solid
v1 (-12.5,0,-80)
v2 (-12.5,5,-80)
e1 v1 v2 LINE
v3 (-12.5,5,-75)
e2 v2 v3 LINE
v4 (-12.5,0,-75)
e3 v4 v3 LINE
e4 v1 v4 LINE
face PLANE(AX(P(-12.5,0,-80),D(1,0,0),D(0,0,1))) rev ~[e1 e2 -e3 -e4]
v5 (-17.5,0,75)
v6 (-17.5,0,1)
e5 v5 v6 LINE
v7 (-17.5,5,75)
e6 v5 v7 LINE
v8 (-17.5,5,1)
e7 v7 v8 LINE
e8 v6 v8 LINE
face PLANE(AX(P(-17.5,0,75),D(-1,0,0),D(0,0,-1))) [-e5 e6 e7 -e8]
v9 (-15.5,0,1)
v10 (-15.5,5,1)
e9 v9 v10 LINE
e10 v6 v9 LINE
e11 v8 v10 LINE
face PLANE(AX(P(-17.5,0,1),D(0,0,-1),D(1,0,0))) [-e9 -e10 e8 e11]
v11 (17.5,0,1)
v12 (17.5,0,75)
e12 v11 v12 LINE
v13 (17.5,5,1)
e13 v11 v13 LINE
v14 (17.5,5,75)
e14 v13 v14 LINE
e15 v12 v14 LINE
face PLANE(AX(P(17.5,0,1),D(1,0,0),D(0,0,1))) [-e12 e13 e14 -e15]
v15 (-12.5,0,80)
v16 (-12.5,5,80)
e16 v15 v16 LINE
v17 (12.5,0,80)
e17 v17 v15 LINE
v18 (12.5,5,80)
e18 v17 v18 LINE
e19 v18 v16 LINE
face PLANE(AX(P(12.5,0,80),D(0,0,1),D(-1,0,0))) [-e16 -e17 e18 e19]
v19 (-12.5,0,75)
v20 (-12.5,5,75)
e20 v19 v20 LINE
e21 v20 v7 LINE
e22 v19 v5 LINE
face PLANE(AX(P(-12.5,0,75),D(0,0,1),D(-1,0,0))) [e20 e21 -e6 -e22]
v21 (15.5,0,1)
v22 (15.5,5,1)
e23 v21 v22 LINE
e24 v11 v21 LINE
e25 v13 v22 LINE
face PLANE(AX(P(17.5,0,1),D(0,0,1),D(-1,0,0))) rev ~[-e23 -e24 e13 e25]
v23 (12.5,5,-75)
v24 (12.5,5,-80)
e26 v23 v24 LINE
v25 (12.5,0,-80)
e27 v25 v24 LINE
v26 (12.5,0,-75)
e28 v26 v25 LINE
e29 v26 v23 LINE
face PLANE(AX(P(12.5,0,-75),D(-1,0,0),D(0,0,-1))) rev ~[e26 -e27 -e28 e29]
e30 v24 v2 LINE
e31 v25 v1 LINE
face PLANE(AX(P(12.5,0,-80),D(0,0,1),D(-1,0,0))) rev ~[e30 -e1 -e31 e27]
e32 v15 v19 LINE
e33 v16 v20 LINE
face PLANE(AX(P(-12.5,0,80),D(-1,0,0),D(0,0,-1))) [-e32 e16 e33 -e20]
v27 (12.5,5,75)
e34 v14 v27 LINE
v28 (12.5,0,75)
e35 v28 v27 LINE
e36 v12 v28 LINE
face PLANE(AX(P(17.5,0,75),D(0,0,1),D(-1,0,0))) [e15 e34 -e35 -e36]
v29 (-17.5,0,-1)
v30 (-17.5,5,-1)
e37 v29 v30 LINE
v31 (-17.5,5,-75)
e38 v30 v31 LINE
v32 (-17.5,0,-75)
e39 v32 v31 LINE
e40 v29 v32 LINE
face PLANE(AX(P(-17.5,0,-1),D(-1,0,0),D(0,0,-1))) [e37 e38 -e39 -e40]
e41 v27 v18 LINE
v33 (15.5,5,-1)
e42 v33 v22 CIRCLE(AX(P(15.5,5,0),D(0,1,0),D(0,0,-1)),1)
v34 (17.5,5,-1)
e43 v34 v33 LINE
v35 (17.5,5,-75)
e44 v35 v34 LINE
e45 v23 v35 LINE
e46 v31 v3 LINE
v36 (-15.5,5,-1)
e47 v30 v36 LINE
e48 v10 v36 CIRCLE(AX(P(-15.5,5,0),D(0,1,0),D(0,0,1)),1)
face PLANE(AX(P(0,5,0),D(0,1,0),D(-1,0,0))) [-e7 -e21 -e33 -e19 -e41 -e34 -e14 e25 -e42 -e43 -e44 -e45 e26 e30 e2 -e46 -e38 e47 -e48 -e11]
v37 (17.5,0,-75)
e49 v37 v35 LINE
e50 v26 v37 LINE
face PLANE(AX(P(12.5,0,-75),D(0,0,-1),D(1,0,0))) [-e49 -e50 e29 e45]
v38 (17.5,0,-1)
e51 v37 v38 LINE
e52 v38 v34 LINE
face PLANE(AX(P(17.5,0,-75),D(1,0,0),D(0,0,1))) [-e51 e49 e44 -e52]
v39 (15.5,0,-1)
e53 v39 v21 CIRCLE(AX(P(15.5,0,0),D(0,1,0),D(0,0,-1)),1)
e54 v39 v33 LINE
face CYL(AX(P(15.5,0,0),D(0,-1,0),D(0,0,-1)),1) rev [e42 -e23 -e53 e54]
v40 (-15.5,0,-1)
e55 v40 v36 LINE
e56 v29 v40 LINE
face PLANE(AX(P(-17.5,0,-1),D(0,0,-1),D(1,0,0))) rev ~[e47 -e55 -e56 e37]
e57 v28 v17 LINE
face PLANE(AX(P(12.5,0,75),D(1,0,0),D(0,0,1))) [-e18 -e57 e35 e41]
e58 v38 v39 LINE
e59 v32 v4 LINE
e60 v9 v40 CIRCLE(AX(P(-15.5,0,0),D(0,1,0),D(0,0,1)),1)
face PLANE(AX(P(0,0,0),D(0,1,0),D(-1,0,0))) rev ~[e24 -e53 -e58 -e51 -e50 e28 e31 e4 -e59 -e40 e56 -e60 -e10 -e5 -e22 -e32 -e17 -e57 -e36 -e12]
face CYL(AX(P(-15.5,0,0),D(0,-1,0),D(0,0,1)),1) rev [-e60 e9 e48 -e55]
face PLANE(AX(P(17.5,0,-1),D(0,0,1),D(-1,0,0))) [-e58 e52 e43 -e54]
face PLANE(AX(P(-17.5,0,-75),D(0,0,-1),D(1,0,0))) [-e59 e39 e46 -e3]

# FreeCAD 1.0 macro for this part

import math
import FreeCAD as App
import Part
import Sketcher
from FreeCAD import Vector

doc = App.newDocument("Part")
body = doc.addObject("PartDesign::Body", "Body")

sketch1 = body.newObject("Sketcher::SketchObject", "Sketch")
sketch1.AttachmentSupport = (doc.getObject("XZ_Plane"), [""])
sketch1.MapMode = "FlatFace"
sketch1.addGeometry(Part.LineSegment(Vector(-12.5, -75, 0), Vector(-17.5, -75, 0)), False)
sketch1.addGeometry(Part.LineSegment(Vector(-17.5, -75, 0), Vector(-17.5, -1, 0)), False)
sketch1.addGeometry(Part.LineSegment(Vector(-17.5, -1, 0), Vector(-15.5, -1, 0)), False)
sketch1.addGeometry(Part.ArcOfCircle(Part.Circle(Vector(-15.5, 0, 0), Vector(0, 0, 1), 1), math.radians(-90), math.radians(90)), False)
sketch1.addGeometry(Part.LineSegment(Vector(-15.5, 1, 0), Vector(-17.5, 1, 0)), False)
sketch1.addGeometry(Part.LineSegment(Vector(-17.5, 1, 0), Vector(-17.5, 75, 0)), False)
sketch1.addGeometry(Part.LineSegment(Vector(-17.5, 75, 0), Vector(-12.5, 75, 0)), False)
sketch1.addGeometry(Part.LineSegment(Vector(-12.5, 75, 0), Vector(-12.5, 80, 0)), False)
sketch1.addGeometry(Part.LineSegment(Vector(-12.5, 80, 0), Vector(12.5, 80, 0)), False)
sketch1.addGeometry(Part.LineSegment(Vector(12.5, 80, 0), Vector(12.5, 75, 0)), False)
sketch1.addGeometry(Part.LineSegment(Vector(12.5, 75, 0), Vector(17.5, 75, 0)), False)
sketch1.addGeometry(Part.LineSegment(Vector(17.5, 75, 0), Vector(17.5, 1, 0)), False)
sketch1.addGeometry(Part.LineSegment(Vector(17.5, 1, 0), Vector(15.5, 1, 0)), False)
sketch1.addGeometry(Part.ArcOfCircle(Part.Circle(Vector(15.5, 0, 0), Vector(0, 0, 1), 1), math.radians(90), math.radians(270)), False)
sketch1.addGeometry(Part.LineSegment(Vector(15.5, -1, 0), Vector(17.5, -1, 0)), False)
sketch1.addGeometry(Part.LineSegment(Vector(17.5, -1, 0), Vector(17.5, -75, 0)), False)
sketch1.addGeometry(Part.LineSegment(Vector(17.5, -75, 0), Vector(12.5, -75, 0)), False)
sketch1.addGeometry(Part.LineSegment(Vector(12.5, -75, 0), Vector(12.5, -80, 0)), False)
sketch1.addGeometry(Part.LineSegment(Vector(12.5, -80, 0), Vector(-12.5, -80, 0)), False)
sketch1.addGeometry(Part.LineSegment(Vector(-12.5, -80, 0), Vector(-12.5, -75, 0)), False)
sketch1.addConstraint(Sketcher.Constraint("Coincident", 0, 2, 1, 1))
sketch1.addConstraint(Sketcher.Constraint("Coincident", 1, 2, 2, 1))
sketch1.addConstraint(Sketcher.Constraint("Tangent", 2, 2, 3, 1))
sketch1.addConstraint(Sketcher.Constraint("Tangent", 3, 2, 4, 1))
sketch1.addConstraint(Sketcher.Constraint("Coincident", 4, 2, 5, 1))
sketch1.addConstraint(Sketcher.Constraint("Coincident", 5, 2, 6, 1))
sketch1.addConstraint(Sketcher.Constraint("Coincident", 6, 2, 7, 1))
sketch1.addConstraint(Sketcher.Constraint("Coincident", 7, 2, 8, 1))
sketch1.addConstraint(Sketcher.Constraint("Coincident", 8, 2, 9, 1))
sketch1.addConstraint(Sketcher.Constraint("Coincident", 9, 2, 10, 1))
sketch1.addConstraint(Sketcher.Constraint("Coincident", 10, 2, 11, 1))
sketch1.addConstraint(Sketcher.Constraint("Coincident", 11, 2, 12, 1))
sketch1.addConstraint(Sketcher.Constraint("Tangent", 12, 2, 13, 1))
sketch1.addConstraint(Sketcher.Constraint("Tangent", 13, 2, 14, 1))
sketch1.addConstraint(Sketcher.Constraint("Coincident", 14, 2, 15, 1))
sketch1.addConstraint(Sketcher.Constraint("Coincident", 15, 2, 16, 1))
sketch1.addConstraint(Sketcher.Constraint("Coincident", 16, 2, 17, 1))
sketch1.addConstraint(Sketcher.Constraint("Coincident", 17, 2, 18, 1))
sketch1.addConstraint(Sketcher.Constraint("Coincident", 18, 2, 19, 1))
sketch1.addConstraint(Sketcher.Constraint("Coincident", 19, 2, 0, 1))
sketch1.addConstraint(Sketcher.Constraint("Horizontal", 0))
sketch1.addConstraint(Sketcher.Constraint("Vertical", 1))
sketch1.addConstraint(Sketcher.Constraint("Horizontal", 2))
sketch1.addConstraint(Sketcher.Constraint("Horizontal", 4))
sketch1.addConstraint(Sketcher.Constraint("Vertical", 5))
sketch1.addConstraint(Sketcher.Constraint("Horizontal", 6))
sketch1.addConstraint(Sketcher.Constraint("Vertical", 7))
sketch1.addConstraint(Sketcher.Constraint("Horizontal", 8))
sketch1.addConstraint(Sketcher.Constraint("Vertical", 9))
sketch1.addConstraint(Sketcher.Constraint("Horizontal", 10))
sketch1.addConstraint(Sketcher.Constraint("Vertical", 11))
sketch1.addConstraint(Sketcher.Constraint("Horizontal", 12))
sketch1.addConstraint(Sketcher.Constraint("Horizontal", 14))
sketch1.addConstraint(Sketcher.Constraint("Vertical", 15))
sketch1.addConstraint(Sketcher.Constraint("Horizontal", 16))
sketch1.addConstraint(Sketcher.Constraint("Vertical", 17))
sketch1.addConstraint(Sketcher.Constraint("Horizontal", 18))
sketch1.addConstraint(Sketcher.Constraint("Vertical", 19))
sketch1.addConstraint(Sketcher.Constraint("Equal", 3, 13))
sketch1.addConstraint(Sketcher.Constraint("Symmetric", 3, 3, 13, 3, -1, 1))
sketch1.addConstraint(Sketcher.Constraint("Symmetric", 0, 2, 10, 2, -1, 1))
sketch1.addConstraint(Sketcher.Constraint("Symmetric", 5, 2, 15, 2, -1, 1))
sketch1.addConstraint(Sketcher.Constraint("Symmetric", 7, 2, 17, 2, -1, 1))
sketch1.addConstraint(Sketcher.Constraint("Symmetric", 6, 2, 9, 2, -2))
sketch1.addConstraint(Sketcher.Constraint("Symmetric", 4, 2, 11, 2, -2))
sketch1.addConstraint(Sketcher.Constraint("Vertical", 7, 2, 18, 2))
sketch1.addConstraint(Sketcher.Constraint("Equal", 16, 7))
sketch1.addConstraint(Sketcher.Constraint("Radius", 3, 1.0))
sketch1.addConstraint(Sketcher.Constraint("DistanceX", 0, 2, 0, 1, 5.0))
sketch1.addConstraint(Sketcher.Constraint("DistanceX", 2, 1, 2, 2, 2.0))
sketch1.addConstraint(Sketcher.Constraint("DistanceX", 8, 1, 8, 2, 25.0))
sketch1.addConstraint(Sketcher.Constraint("DistanceY", 1, 1, 1, 2, 74.0))
pad1 = body.newObject("PartDesign::Pad", "Pad")
pad1.Profile = sketch1
pad1.Length = 5
pad1.Reversed = True

doc.recompute()
